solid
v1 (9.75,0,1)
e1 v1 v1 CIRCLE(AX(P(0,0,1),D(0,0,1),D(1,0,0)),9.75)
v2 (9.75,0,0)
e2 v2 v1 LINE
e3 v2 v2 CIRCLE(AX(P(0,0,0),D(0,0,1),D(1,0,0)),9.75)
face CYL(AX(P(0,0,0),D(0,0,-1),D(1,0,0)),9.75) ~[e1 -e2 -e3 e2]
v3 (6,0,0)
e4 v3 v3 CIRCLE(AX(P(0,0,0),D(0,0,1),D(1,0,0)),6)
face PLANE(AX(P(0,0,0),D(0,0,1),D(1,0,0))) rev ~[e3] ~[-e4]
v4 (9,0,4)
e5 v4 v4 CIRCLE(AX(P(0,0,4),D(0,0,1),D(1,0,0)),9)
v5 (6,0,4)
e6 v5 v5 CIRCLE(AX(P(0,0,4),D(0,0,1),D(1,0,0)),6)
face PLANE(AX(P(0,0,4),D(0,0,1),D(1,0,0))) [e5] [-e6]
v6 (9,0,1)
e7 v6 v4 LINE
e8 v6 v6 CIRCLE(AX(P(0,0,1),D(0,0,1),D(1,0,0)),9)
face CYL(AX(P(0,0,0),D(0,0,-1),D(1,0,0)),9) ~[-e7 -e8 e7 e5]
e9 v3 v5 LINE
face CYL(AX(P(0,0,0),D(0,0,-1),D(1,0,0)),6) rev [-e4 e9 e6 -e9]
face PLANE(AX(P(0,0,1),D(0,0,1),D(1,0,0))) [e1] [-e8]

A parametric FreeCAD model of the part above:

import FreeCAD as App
import Part
import Sketcher

doc = App.newDocument("Part")
body = doc.addObject("PartDesign::Body", "Body")

sketch1 = body.newObject("Sketcher::SketchObject", "Sketch")
sketch1.AttachmentSupport = (doc.getObject("XY_Plane"), [""])
sketch1.MapMode = "FlatFace"
sketch1.addGeometry([
    Part.Circle(App.Vector(0, 0, 0), App.Vector(0, 0, 1), 10),
    Part.Circle(App.Vector(0, 0, 0), App.Vector(0, 0, 1), 9),
], False)
sketch1.addConstraint([
    Sketcher.Constraint("Coincident", 0, 3, -1, 1),
    Sketcher.Constraint("Coincident", 1, 3, -1, 1),
    Sketcher.Constraint("Diameter", 1, 18.0),
    Sketcher.Constraint("Diameter", 0, 19.5),
])
pad1 = body.newObject("PartDesign::Pad", "Pad")
pad1.Profile = sketch1
pad1.Length = 1

sketch2 = body.newObject("Sketcher::SketchObject", "Sketch001")
sketch2.AttachmentSupport = (doc.getObject("XY_Plane"), [""])
sketch2.MapMode = "FlatFace"
sketch2.addGeometry([
    Part.Circle(App.Vector(0, 0, 0), App.Vector(0, 0, 1), 9),
    Part.Circle(App.Vector(0, 0, 0), App.Vector(0, 0, 1), 6),
], False)
sketch2.addConstraint([
    Sketcher.Constraint("Coincident", 0, 3, -1, 1),
    Sketcher.Constraint("Coincident", 1, 3, -1, 1),
    Sketcher.Constraint("Diameter", 0, 18.0),
    Sketcher.Constraint("Diameter", 1, 12.0),
])
pad2 = body.newObject("PartDesign::Pad", "Pad001")
pad2.Profile = sketch2
pad2.Length = 4

doc.recompute()
